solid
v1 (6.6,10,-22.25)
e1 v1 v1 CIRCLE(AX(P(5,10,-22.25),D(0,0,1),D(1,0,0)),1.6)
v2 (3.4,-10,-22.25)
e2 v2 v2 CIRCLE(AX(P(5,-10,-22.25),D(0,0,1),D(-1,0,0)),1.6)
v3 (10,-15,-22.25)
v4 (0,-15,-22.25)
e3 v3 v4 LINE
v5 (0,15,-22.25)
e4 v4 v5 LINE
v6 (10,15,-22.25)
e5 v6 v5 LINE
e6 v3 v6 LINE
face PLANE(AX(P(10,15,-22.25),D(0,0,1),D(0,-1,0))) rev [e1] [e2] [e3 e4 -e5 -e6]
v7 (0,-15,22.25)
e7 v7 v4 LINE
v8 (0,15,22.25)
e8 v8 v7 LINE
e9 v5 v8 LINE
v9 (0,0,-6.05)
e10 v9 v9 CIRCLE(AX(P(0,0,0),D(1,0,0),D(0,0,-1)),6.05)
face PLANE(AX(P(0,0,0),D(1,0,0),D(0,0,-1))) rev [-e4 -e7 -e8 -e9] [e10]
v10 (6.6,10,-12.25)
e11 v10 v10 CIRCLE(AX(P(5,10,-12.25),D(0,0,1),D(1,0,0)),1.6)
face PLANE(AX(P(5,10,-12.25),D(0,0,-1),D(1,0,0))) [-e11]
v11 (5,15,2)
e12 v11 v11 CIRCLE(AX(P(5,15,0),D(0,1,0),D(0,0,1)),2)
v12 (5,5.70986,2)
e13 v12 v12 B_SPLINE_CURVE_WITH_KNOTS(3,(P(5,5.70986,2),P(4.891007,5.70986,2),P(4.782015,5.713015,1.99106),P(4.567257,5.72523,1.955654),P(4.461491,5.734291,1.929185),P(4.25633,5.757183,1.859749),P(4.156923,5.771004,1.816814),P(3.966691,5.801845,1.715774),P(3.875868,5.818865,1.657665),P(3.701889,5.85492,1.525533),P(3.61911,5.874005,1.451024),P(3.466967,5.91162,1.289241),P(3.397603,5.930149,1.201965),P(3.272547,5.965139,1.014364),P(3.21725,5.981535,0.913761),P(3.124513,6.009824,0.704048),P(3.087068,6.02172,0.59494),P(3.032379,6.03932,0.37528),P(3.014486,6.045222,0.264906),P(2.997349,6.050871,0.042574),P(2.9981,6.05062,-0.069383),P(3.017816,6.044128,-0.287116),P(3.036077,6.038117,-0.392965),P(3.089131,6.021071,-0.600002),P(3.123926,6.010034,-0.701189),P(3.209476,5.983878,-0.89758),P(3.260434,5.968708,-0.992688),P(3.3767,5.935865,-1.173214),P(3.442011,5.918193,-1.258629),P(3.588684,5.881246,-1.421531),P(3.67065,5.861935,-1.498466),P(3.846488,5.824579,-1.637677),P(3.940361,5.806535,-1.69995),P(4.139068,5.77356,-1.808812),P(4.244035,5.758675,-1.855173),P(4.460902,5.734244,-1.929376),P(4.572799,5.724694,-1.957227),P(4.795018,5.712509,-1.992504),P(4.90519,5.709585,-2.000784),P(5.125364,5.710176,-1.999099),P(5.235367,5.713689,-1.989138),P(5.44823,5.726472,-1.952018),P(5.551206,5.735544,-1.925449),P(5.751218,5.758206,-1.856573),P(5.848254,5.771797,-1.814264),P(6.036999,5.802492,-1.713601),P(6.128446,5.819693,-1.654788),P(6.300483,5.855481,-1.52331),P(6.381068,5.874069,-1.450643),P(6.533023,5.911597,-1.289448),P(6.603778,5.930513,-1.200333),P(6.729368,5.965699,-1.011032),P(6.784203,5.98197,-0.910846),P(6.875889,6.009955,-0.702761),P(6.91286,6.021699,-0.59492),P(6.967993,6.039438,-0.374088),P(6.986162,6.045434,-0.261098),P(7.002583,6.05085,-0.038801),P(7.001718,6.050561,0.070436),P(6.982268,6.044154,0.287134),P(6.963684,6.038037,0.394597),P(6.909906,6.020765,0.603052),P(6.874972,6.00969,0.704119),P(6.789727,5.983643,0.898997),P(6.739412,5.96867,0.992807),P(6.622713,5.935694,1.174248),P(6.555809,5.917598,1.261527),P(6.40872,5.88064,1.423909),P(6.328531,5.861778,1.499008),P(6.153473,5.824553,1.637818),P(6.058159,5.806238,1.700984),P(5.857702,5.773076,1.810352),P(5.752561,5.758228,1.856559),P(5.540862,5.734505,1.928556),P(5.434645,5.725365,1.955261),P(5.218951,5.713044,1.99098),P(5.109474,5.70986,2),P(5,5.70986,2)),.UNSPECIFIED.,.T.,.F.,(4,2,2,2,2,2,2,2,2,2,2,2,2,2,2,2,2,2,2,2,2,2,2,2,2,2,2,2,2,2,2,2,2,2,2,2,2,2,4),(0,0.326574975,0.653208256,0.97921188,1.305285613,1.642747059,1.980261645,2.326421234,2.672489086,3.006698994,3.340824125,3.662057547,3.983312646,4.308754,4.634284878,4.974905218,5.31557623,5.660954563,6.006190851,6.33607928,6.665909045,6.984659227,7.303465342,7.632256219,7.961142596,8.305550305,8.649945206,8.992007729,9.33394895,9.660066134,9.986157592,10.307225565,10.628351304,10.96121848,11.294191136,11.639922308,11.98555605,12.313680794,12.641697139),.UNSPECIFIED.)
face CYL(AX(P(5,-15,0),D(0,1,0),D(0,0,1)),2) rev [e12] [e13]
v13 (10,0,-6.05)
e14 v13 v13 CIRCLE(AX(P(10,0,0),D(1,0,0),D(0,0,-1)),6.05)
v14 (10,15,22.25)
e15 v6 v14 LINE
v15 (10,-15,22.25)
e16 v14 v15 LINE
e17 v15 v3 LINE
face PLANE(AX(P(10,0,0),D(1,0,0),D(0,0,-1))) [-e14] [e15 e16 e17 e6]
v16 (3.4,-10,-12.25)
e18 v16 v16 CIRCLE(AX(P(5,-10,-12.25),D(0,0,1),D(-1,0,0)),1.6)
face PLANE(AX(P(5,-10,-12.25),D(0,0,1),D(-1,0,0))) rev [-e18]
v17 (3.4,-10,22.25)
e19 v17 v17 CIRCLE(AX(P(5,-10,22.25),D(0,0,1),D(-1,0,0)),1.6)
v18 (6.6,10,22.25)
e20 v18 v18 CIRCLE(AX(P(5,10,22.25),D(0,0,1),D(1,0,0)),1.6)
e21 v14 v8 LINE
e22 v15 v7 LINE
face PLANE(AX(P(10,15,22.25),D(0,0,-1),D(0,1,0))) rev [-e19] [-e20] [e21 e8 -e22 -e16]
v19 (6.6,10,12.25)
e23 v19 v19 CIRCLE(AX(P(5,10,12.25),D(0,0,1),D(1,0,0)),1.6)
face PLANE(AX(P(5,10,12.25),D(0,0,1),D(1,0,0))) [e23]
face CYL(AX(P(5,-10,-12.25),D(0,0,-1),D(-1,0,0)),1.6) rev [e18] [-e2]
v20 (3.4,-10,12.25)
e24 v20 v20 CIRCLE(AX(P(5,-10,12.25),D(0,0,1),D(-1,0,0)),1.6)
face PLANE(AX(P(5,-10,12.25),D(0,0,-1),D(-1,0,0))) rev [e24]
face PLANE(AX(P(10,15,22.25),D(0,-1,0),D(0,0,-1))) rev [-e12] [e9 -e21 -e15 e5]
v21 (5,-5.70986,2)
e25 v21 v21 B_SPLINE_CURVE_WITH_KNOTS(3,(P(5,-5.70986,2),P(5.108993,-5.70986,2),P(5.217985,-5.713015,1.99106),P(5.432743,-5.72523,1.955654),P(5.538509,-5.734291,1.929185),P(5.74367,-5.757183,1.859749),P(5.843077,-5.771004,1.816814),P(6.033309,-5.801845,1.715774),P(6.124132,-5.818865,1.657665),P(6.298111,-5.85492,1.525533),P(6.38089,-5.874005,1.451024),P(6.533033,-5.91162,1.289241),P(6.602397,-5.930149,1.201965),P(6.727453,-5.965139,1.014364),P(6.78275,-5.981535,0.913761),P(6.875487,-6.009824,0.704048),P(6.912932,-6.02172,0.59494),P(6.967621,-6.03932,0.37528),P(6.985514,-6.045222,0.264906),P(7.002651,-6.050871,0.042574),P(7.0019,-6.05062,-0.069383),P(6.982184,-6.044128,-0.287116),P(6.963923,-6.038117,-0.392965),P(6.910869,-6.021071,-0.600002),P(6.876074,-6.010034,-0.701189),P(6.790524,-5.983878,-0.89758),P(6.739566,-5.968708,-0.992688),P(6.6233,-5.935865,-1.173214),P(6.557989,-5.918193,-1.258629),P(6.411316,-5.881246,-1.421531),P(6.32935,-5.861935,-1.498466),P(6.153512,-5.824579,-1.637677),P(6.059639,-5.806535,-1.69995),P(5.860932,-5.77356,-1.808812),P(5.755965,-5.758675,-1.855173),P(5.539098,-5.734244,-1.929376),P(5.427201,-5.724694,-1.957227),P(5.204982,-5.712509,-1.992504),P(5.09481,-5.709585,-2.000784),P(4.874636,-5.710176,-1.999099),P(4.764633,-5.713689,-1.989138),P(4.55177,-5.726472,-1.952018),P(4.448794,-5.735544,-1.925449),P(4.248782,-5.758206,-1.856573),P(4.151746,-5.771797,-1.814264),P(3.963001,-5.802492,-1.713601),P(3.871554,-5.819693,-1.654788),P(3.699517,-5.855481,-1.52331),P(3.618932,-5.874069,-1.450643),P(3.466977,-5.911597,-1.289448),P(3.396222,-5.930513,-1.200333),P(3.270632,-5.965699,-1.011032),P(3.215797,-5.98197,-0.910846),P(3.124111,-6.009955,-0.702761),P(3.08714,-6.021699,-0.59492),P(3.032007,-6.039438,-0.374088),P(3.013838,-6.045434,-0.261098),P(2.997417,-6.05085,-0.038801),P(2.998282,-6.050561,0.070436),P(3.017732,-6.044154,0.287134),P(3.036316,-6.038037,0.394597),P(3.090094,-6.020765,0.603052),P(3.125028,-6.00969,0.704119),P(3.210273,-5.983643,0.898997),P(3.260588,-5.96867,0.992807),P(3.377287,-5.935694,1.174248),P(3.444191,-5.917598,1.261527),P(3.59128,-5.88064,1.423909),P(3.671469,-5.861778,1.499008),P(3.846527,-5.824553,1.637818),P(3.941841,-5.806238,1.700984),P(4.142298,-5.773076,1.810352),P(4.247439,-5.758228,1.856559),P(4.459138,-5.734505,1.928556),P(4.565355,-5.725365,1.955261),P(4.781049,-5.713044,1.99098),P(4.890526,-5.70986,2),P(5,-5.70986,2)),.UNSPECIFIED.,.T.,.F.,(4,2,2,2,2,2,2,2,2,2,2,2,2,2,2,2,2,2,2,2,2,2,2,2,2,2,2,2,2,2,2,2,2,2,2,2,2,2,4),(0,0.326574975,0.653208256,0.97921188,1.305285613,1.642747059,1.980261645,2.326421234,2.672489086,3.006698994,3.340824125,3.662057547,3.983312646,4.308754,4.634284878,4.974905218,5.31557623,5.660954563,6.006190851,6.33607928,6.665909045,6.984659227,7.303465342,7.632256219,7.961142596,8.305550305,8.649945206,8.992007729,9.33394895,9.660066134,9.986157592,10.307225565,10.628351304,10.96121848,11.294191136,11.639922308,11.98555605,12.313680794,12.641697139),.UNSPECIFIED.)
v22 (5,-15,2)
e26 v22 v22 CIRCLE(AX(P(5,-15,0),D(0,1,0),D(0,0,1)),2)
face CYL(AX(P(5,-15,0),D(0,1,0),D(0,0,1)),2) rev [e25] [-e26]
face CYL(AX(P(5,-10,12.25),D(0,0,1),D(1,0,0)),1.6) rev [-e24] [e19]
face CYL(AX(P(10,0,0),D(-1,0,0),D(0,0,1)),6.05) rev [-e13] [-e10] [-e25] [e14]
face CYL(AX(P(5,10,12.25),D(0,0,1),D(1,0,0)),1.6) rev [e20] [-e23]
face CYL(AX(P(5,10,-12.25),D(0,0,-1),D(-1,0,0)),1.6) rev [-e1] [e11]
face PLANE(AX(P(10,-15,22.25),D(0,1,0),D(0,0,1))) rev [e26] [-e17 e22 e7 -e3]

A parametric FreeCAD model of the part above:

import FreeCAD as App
import Part
import Sketcher

V = App.Vector

doc = App.newDocument("Part")
body = doc.addObject("PartDesign::Body", "Body")

sketch1 = body.newObject("Sketcher::SketchObject", "Sketch")
sketch1.AttachmentSupport = (doc.getObject("YZ_Plane"), [""])
sketch1.MapMode = "FlatFace"
sketch1.addGeometry(Part.LineSegment(V(15, 22.25, 0), V(-15, 22.25, 0)), False)
sketch1.addGeometry(Part.LineSegment(V(-15, 22.25, 0), V(-15, -22.25, 0)), False)
sketch1.addGeometry(Part.LineSegment(V(-15, -22.25, 0), V(15, -22.25, 0)), False)
sketch1.addGeometry(Part.LineSegment(V(15, -22.25, 0), V(15, 22.25, 0)), False)
sketch1.addGeometry(Part.Circle(V(0, 0, 0), V(0, 0, 1), 6.05), False)
sketch1.addConstraint(Sketcher.Constraint("Coincident", 0, 2, 1, 1))
sketch1.addConstraint(Sketcher.Constraint("Coincident", 1, 2, 2, 1))
sketch1.addConstraint(Sketcher.Constraint("Coincident", 2, 2, 3, 1))
sketch1.addConstraint(Sketcher.Constraint("Coincident", 3, 2, 0, 1))
sketch1.addConstraint(Sketcher.Constraint("Horizontal", 0))
sketch1.addConstraint(Sketcher.Constraint("Vertical", 1))
sketch1.addConstraint(Sketcher.Constraint("Horizontal", 2))
sketch1.addConstraint(Sketcher.Constraint("Vertical", 3))
sketch1.addConstraint(Sketcher.Constraint("Coincident", 4, 3, -1, 1))
sketch1.addConstraint(Sketcher.Constraint("Symmetric", 0, 2, 2, 2, -1, 1))
sketch1.addConstraint(Sketcher.Constraint("Diameter", 4, 12.1))
sketch1.addConstraint(Sketcher.Constraint("DistanceX", 0, 2, 0, 1, 30.0))
sketch1.addConstraint(Sketcher.Constraint("DistanceY", 1, 2, 1, 1, 44.5))
pad1 = body.newObject("PartDesign::Pad", "Pad")
pad1.Profile = sketch1
pad1.Length = 10

sketch2 = body.newObject("Sketcher::SketchObject", "Sketch001")
sketch2.AttachmentSupport = (doc.getObject("XY_Plane"), [""])
sketch2.MapMode = "FlatFace"
sketch2.AttachmentOffset = App.Placement(V(0, 0, 22.25), App.Rotation())
sketch2.addGeometry(Part.Circle(V(5, 10, 0), V(0, 0, 1), 1.6), False)
sketch2.addGeometry(Part.Circle(V(5, -10, 0), V(0, 0, 1), 1.6), False)
sketch2.addConstraint(Sketcher.Constraint("Equal", 0, 1))
sketch2.addConstraint(Sketcher.Constraint("Symmetric", 0, 3, 1, 3, -1))
sketch2.addConstraint(Sketcher.Constraint("Diameter", 0, 3.2))
sketch2.addConstraint(Sketcher.Constraint("DistanceX", -1, 1, 0, 3, 5.0))
sketch2.addConstraint(Sketcher.Constraint("DistanceY", -1, 1, 0, 3, 10.0))
pocket1 = body.newObject("PartDesign::Pocket", "Pocket")
pocket1.Profile = sketch2
pocket1.Length = 10

sketch3 = body.newObject("Sketcher::SketchObject", "Sketch002")
sketch3.AttachmentSupport = (doc.getObject("XZ_Plane"), [""])
sketch3.MapMode = "FlatFace"
sketch3.AttachmentOffset = App.Placement(V(0, 0, -15), App.Rotation())
sketch3.addGeometry(Part.Circle(V(5, 0, 0), V(0, 0, 1), 2), False)
sketch3.addConstraint(Sketcher.Constraint("PointOnObject", 0, 3, -1))
sketch3.addConstraint(Sketcher.Constraint("Diameter", 0, 4.0))
sketch3.addConstraint(Sketcher.Constraint("DistanceX", -1, 1, 0, 3, 5.0))
pocket2 = body.newObject("PartDesign::Pocket", "Pocket001")
pocket2.Profile = sketch3
pocket2.Type = "ThroughAll"
pocket2.Reversed = True
doc.recompute()

mirrored = body.newObject("PartDesign::Mirrored", "Mirrored")
mirrored.Originals = [pocket1]
mirrored.MirrorPlane = (doc.getObject("XY_Plane"), [""])
body.Tip = mirrored

doc.recompute()
